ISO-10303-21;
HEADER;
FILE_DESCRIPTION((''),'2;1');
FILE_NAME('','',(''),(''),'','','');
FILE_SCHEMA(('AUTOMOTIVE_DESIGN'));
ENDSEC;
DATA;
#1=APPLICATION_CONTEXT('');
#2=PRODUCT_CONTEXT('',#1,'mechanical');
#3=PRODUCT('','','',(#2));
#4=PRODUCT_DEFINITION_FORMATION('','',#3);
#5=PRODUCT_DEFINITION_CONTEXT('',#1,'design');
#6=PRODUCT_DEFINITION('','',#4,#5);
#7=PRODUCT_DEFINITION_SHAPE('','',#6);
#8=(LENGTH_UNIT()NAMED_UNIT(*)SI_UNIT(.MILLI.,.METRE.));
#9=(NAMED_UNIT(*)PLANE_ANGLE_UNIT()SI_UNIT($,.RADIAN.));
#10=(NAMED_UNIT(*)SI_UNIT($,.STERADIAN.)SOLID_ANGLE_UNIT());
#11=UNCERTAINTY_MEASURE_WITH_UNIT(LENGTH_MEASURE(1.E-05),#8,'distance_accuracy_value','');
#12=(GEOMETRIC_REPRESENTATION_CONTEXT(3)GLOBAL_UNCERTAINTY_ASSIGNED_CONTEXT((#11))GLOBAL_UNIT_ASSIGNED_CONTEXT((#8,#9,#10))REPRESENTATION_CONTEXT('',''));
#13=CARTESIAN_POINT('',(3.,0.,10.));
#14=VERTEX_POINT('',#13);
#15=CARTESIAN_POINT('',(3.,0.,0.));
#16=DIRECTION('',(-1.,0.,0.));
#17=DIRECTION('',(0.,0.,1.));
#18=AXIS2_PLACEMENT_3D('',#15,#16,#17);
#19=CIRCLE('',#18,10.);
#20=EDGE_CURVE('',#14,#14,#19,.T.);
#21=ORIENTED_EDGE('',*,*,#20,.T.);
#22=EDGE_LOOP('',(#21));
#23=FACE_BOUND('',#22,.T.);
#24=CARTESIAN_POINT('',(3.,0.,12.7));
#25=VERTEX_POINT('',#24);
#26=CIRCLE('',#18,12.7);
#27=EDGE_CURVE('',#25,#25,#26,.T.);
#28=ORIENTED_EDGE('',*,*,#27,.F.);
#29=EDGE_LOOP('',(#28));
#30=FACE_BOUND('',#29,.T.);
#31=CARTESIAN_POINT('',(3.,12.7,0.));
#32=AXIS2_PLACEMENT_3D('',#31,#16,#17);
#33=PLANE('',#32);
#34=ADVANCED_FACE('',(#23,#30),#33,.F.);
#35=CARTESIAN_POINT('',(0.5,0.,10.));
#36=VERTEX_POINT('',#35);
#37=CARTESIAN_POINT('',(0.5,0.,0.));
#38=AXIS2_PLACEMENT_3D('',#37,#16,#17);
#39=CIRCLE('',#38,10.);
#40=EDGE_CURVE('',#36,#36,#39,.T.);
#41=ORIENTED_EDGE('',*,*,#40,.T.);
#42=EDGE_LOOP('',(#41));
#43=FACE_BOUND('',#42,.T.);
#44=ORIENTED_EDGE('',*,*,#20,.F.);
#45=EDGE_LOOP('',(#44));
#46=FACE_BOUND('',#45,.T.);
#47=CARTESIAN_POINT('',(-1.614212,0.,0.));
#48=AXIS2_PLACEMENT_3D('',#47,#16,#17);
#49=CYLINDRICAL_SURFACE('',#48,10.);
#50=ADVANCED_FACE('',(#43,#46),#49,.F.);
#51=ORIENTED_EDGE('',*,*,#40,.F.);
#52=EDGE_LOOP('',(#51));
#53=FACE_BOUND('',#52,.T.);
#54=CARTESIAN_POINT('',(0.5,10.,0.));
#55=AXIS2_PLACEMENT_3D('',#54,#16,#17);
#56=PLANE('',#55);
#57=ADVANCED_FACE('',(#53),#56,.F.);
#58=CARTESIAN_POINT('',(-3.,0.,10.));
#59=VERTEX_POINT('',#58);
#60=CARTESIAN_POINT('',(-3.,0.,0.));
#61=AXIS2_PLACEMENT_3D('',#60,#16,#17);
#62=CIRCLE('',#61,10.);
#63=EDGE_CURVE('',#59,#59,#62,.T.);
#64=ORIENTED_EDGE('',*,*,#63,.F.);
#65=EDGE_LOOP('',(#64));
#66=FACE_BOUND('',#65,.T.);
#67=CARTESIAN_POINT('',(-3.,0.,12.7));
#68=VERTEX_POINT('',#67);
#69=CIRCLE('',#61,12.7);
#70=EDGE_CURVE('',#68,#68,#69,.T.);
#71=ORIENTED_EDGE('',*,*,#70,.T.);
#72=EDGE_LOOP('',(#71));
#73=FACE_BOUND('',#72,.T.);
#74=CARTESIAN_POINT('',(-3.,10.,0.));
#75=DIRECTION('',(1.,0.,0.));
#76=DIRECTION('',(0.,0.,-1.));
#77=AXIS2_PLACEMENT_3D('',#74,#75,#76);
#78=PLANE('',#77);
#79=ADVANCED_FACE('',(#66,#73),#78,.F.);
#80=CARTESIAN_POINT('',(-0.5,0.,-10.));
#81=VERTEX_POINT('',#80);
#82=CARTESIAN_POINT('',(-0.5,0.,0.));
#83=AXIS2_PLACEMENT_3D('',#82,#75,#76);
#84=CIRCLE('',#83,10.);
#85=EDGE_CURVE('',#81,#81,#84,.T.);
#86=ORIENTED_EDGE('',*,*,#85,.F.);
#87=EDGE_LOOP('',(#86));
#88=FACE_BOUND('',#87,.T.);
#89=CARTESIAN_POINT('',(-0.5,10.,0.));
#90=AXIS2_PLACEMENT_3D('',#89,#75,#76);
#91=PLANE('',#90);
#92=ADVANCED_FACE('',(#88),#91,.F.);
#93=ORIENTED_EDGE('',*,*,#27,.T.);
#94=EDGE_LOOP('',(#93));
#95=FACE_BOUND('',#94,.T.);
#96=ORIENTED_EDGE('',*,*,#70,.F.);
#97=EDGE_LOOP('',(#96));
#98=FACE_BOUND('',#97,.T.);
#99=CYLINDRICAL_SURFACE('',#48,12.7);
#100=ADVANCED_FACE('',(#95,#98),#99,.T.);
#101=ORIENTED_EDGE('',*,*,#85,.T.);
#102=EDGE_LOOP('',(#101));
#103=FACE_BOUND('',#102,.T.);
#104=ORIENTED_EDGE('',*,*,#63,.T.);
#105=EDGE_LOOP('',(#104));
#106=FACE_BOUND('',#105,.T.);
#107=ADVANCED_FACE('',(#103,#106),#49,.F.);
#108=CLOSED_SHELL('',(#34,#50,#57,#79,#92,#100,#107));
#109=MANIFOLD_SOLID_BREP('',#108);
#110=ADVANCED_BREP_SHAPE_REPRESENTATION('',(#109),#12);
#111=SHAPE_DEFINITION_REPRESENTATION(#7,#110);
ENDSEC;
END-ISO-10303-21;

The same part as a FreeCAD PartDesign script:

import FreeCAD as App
import Part
import Sketcher

V = App.Vector
Q = App.Units.Quantity


def add_polygon(sketch, points):
    """Adds a closed chain of lines whose ends are joined by coincident constraints."""
    first, n = sketch.GeometryCount, len(points)
    for a, b in zip(points, points[1:] + points[:1]):
        sketch.addGeometry(Part.LineSegment(App.Vector(*a, 0), App.Vector(*b, 0)), False)
    for i in range(n):
        sketch.addConstraint(Sketcher.Constraint("Coincident", first + i, 2, first + (i + 1) % n, 1))

doc = App.newDocument("Part")
body = doc.addObject("PartDesign::Body", "Body")

# Sketch on XY plane
sketch1 = body.newObject("Sketcher::SketchObject", "Sketch")
sketch1.AttachmentSupport = (doc.getObject("XY_Plane"), [""])
sketch1.MapMode = "FlatFace"
add_polygon(sketch1, [(-0.5, 10), (-0.5, 0), (0.5, 0), (0.5, 10)])  # lines 0-3
sketch1.addConstraint([
    Sketcher.Constraint("Vertical", 0),
    Sketcher.Constraint("Horizontal", 1),
    Sketcher.Constraint("Vertical", 2),
    Sketcher.Constraint("Horizontal", 3),
    Sketcher.Constraint("Symmetric", 0, 2, 1, 2, -1, 1),
    Sketcher.Constraint("DistanceX", 1, 1, 1, 2, Q("1 mm")),
    Sketcher.Constraint("DistanceY", 0, 2, 0, 1, Q("10 mm")),
])
revolution = body.newObject("PartDesign::Revolution", "Revolution")
revolution.Profile = sketch1
revolution.ReferenceAxis = (sketch1, ["H_Axis"])
revolution.Angle = 360

# Sketch on XY plane
sketch2 = body.newObject("Sketcher::SketchObject", "Sketch001")
sketch2.AttachmentSupport = (doc.getObject("XY_Plane"), [""])
sketch2.MapMode = "FlatFace"
add_polygon(sketch2, [(-3, 12.7), (-3, 10), (3, 10), (3, 12.7)])  # lines 0-3
sketch2.addConstraint([
    Sketcher.Constraint("Vertical", 0),
    Sketcher.Constraint("Horizontal", 1),
    Sketcher.Constraint("Vertical", 2),
    Sketcher.Constraint("Horizontal", 3),
    Sketcher.Constraint("DistanceX", 1, 1, 1, 2, Q("6 mm")),
    Sketcher.Constraint("DistanceY", 0, 2, 0, 1, Q("2.7 mm")),
    Sketcher.Constraint("DistanceX", 0, 2, -1, 1, Q("3 mm")),
    Sketcher.Constraint("DistanceY", -1, 1, 0, 2, Q("10 mm")),
])
revolution2 = body.newObject("PartDesign::Revolution", "Revolution001")
revolution2.Profile = sketch2
revolution2.ReferenceAxis = (sketch2, ["H_Axis"])
revolution2.Angle = 360

doc.recompute()
